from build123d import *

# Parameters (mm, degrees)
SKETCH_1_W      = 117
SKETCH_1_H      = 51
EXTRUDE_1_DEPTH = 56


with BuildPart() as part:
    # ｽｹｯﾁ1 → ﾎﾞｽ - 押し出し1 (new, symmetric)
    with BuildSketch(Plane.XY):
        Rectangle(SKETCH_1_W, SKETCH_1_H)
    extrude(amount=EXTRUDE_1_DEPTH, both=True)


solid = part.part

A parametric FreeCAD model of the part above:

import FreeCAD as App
import Part
import Sketcher
from FreeCAD import Vector
Q = App.Units.Quantity

doc = App.newDocument("Part")
body = doc.addObject("PartDesign::Body", "Body")

sketch1 = body.newObject("Sketcher::SketchObject", "Sketch")
sketch1.AttachmentSupport = (doc.getObject("XY_Plane"), [""])
sketch1.MapMode = "FlatFace"
sketch1.addGeometry(Part.LineSegment(Vector(-58, 26, 0), Vector(-58, -26, 0)), False)
sketch1.addGeometry(Part.LineSegment(Vector(-58, -26, 0), Vector(58, -26, 0)), False)
sketch1.addGeometry(Part.LineSegment(Vector(58, -26, 0), Vector(58, 26, 0)), False)
sketch1.addGeometry(Part.LineSegment(Vector(58, 26, 0), Vector(-58, 26, 0)), False)
sketch1.addConstraint(Sketcher.Constraint("Coincident", 0, 2, 1, 1))
sketch1.addConstraint(Sketcher.Constraint("Coincident", 1, 2, 2, 1))
sketch1.addConstraint(Sketcher.Constraint("Coincident", 2, 2, 3, 1))
sketch1.addConstraint(Sketcher.Constraint("Coincident", 3, 2, 0, 1))
sketch1.addConstraint(Sketcher.Constraint("Vertical", 0))
sketch1.addConstraint(Sketcher.Constraint("Horizontal", 1))
sketch1.addConstraint(Sketcher.Constraint("Vertical", 2))
sketch1.addConstraint(Sketcher.Constraint("Horizontal", 3))
sketch1.addConstraint(Sketcher.Constraint("Symmetric", 0, 2, 2, 2, -1, 1))
sketch1.addConstraint(Sketcher.Constraint("DistanceX", 1, 1, 1, 2, Q("117 mm")))
sketch1.addConstraint(Sketcher.Constraint("DistanceY", 0, 2, 0, 1, Q("51 mm")))
pad1 = body.newObject("PartDesign::Pad", "Pad")
pad1.Profile = sketch1
pad1.Length = 112
pad1.Midplane = True

doc.recompute()
